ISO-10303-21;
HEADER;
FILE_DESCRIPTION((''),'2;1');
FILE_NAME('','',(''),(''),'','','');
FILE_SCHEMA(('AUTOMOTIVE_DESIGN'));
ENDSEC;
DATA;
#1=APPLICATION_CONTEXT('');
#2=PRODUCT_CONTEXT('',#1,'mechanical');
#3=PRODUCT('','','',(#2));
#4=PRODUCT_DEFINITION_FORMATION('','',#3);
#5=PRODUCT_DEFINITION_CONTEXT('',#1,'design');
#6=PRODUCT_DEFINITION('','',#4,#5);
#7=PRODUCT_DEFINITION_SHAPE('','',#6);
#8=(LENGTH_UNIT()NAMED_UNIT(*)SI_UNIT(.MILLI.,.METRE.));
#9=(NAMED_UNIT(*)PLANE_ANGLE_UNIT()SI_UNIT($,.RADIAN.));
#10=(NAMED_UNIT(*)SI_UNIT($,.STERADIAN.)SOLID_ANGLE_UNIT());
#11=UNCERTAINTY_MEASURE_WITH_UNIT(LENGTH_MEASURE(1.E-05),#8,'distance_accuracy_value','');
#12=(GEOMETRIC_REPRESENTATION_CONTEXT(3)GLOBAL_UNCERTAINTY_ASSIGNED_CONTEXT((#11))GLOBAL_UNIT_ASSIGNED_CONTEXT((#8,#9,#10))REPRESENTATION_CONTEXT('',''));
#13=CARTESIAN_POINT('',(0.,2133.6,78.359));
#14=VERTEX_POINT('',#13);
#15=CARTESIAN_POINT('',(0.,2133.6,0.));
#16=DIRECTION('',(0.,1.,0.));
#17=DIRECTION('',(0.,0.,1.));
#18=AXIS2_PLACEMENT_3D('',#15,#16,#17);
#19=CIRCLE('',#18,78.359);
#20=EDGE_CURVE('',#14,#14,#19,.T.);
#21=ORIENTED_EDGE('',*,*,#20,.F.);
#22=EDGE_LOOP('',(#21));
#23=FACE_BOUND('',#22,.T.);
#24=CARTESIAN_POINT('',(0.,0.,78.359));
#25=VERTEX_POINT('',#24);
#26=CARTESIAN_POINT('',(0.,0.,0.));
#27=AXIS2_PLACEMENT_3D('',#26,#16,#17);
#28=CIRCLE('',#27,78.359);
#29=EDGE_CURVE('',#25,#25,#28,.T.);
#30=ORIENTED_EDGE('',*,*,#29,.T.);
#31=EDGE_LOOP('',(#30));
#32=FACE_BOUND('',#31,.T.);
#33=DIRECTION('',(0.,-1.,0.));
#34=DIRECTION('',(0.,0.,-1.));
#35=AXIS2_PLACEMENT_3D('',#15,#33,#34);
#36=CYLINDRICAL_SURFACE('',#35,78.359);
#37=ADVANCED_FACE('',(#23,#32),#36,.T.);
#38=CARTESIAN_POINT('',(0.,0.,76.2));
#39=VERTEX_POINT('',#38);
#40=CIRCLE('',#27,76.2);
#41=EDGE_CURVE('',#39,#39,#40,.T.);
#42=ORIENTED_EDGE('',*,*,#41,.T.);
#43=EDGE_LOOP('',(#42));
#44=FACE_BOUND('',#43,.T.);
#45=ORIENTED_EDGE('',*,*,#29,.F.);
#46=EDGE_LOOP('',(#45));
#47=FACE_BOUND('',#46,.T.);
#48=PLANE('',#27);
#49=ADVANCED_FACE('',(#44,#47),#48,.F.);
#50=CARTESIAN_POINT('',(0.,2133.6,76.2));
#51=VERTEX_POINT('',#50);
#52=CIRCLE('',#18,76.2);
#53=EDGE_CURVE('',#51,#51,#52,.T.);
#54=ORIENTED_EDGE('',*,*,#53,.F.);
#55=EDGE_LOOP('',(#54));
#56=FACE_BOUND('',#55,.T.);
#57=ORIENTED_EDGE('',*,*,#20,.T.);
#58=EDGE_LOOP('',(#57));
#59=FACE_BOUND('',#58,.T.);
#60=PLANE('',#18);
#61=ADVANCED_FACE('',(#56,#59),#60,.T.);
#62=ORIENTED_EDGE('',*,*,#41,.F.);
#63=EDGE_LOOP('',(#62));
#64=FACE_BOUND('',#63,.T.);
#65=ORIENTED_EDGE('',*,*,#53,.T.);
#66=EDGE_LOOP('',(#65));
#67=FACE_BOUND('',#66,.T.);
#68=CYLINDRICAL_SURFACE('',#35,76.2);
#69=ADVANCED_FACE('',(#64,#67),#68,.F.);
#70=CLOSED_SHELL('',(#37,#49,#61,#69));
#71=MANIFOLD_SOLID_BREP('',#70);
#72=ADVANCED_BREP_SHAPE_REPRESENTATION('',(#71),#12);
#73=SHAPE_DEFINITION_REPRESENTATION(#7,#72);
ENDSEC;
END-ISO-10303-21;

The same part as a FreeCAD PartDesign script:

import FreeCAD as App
import Part
import Sketcher

V = App.Vector
Q = App.Units.Quantity

doc = App.newDocument("Part")
body = doc.addObject("PartDesign::Body", "Body")

# Sketch on XZ plane
sketch1 = doc.addObject("Sketcher::SketchObject", "Sketch")
body.addObject(sketch1)
sketch1.AttachmentSupport = (doc.XZ_Plane, [""])
sketch1.MapMode = "FlatFace"
sketch1.addGeometry(Part.Circle(V(0, 0, 0), V(0, 0, 1), 78), False)
sketch1.addGeometry(Part.Circle(V(0, 0, 0), V(0, 0, 1), 76), False)
sketch1.addConstraint(Sketcher.Constraint("Coincident", 0, 3, -1, 1))
sketch1.addConstraint(Sketcher.Constraint("Coincident", 1, 3, -1, 1))
sketch1.addConstraint(Sketcher.Constraint("Diameter", 1, Q("6 in")))
sketch1.addConstraint(Sketcher.Constraint("Diameter", 0, Q("6.17 in")))
pad1 = doc.addObject("PartDesign::Pad", "Pad")
body.addObject(pad1)
pad1.Profile = sketch1
pad1.Length = Q("84 in")
pad1.Reversed = True

doc.recompute()
